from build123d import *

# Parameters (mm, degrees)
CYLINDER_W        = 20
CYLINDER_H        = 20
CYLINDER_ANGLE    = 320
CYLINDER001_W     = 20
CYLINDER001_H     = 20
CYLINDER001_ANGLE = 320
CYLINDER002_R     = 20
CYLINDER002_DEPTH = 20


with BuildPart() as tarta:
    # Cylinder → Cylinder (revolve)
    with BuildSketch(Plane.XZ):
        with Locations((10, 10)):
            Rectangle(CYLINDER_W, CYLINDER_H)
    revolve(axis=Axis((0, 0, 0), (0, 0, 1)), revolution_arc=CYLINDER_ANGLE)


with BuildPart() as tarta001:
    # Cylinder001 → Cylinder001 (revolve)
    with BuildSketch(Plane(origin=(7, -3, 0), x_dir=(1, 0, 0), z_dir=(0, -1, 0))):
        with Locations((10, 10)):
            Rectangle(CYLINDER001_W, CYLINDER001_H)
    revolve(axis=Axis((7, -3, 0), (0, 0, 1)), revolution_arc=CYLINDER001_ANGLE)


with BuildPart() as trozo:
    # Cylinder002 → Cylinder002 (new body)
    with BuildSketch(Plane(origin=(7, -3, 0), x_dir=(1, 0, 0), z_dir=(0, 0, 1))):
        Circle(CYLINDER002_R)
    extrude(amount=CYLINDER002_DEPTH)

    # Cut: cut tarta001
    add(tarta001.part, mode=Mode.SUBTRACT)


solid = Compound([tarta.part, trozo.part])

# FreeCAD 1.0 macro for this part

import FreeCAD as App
import Part
import Sketcher

V = App.Vector
Q = App.Units.Quantity

doc = App.newDocument("Part")
body = doc.addObject("PartDesign::Body", "Body")

sketch1 = doc.addObject("Sketcher::SketchObject", "Sketch")
body.addObject(sketch1)
sketch1.AttachmentSupport = (doc.XZ_Plane, [""])
sketch1.MapMode = "FlatFace"
sketch1.addGeometry([
    Part.LineSegment(V(0, 20, 0), V(0, 0, 0)),
    Part.LineSegment(V(0, 0, 0), V(20, 0, 0)),
    Part.LineSegment(V(20, 0, 0), V(20, 20, 0)),
    Part.LineSegment(V(20, 20, 0), V(0, 20, 0)),
], False)
sketch1.addConstraint([
    Sketcher.Constraint("Coincident", 0, 2, 1, 1),
    Sketcher.Constraint("Coincident", 1, 2, 2, 1),
    Sketcher.Constraint("Coincident", 2, 2, 3, 1),
    Sketcher.Constraint("Coincident", 3, 2, 0, 1),
    Sketcher.Constraint("Vertical", 0),
    Sketcher.Constraint("Horizontal", 1),
    Sketcher.Constraint("Vertical", 2),
    Sketcher.Constraint("Horizontal", 3),
    Sketcher.Constraint("Coincident", 0, 2, -1, 1),
    Sketcher.Constraint("Equal", 3, 0),
    Sketcher.Constraint("DistanceX", 1, 1, 1, 2, Q("20 mm")),
])
revolution = doc.addObject("PartDesign::Revolution", "Revolution")
body.addObject(revolution)
revolution.Profile = sketch1
revolution.ReferenceAxis = (sketch1, ["V_Axis"])
revolution.Angle = 320
body2 = doc.addObject("PartDesign::Body", "Body001")

sketch2 = doc.addObject("Sketcher::SketchObject", "Sketch001")
body2.addObject(sketch2)
sketch2.AttachmentSupport = (doc.getObject("XZ_Plane001"), [""])
sketch2.MapMode = "FlatFace"
sketch2.AttachmentOffset = App.Placement(V(0, 0, 3), App.Rotation())
sketch2.addGeometry([
    Part.LineSegment(V(7, 20, 0), V(7, 0, 0)),
    Part.LineSegment(V(7, 0, 0), V(27, 0, 0)),
    Part.LineSegment(V(27, 0, 0), V(27, 20, 0)),
    Part.LineSegment(V(27, 20, 0), V(7, 20, 0)),
], False)
sketch2.addGeometry(Part.LineSegment(V(7, 0, 0), V(7, 20, 0)), True)
sketch2.addConstraint([
    Sketcher.Constraint("Coincident", 0, 2, 1, 1),
    Sketcher.Constraint("Coincident", 1, 2, 2, 1),
    Sketcher.Constraint("Coincident", 2, 2, 3, 1),
    Sketcher.Constraint("Coincident", 3, 2, 0, 1),
    Sketcher.Constraint("Vertical", 0),
    Sketcher.Constraint("Horizontal", 1),
    Sketcher.Constraint("Vertical", 2),
    Sketcher.Constraint("Horizontal", 3),
    Sketcher.Constraint("Vertical", 4),
    Sketcher.Constraint("Coincident", 4, 1, 0, 2),
    Sketcher.Constraint("PointOnObject", 0, 2, -1),
    Sketcher.Constraint("Horizontal", 2, 2, 4, 2),
    Sketcher.Constraint("Equal", 3, 0),
    Sketcher.Constraint("DistanceX", 1, 1, 1, 2, Q("20 mm")),
    Sketcher.Constraint("DistanceX", -1, 1, 0, 2, Q("7 mm")),
])
revolution2 = doc.addObject("PartDesign::Revolution", "Revolution001")
body2.addObject(revolution2)
revolution2.Profile = sketch2
revolution2.ReferenceAxis = (sketch2, ["Axis0"])
revolution2.Angle = 320
body3 = doc.addObject("PartDesign::Body", "Body002")

sketch3 = doc.addObject("Sketcher::SketchObject", "Sketch002")
body3.addObject(sketch3)
sketch3.AttachmentSupport = (doc.getObject("XY_Plane002"), [""])
sketch3.MapMode = "FlatFace"
sketch3.addGeometry(Part.Circle(V(7, -3, 0), V(0, 0, 1), 20), False)
sketch3.addConstraint([
    Sketcher.Constraint("Diameter", 0, Q("40 mm")),
    Sketcher.Constraint("DistanceX", -1, 1, 0, 3, Q("7 mm")),
    Sketcher.Constraint("DistanceY", 0, 3, -1, 1, Q("3 mm")),
])
pad1 = doc.addObject("PartDesign::Pad", "Pad")
body3.addObject(pad1)
pad1.Profile = sketch3
pad1.Length = 20
doc.recompute()

boolean = doc.addObject("PartDesign::Boolean", "Boolean")
body3.addObject(boolean)
boolean.Type = "Cut"
boolean.addObjects([body2])

doc.recompute()
